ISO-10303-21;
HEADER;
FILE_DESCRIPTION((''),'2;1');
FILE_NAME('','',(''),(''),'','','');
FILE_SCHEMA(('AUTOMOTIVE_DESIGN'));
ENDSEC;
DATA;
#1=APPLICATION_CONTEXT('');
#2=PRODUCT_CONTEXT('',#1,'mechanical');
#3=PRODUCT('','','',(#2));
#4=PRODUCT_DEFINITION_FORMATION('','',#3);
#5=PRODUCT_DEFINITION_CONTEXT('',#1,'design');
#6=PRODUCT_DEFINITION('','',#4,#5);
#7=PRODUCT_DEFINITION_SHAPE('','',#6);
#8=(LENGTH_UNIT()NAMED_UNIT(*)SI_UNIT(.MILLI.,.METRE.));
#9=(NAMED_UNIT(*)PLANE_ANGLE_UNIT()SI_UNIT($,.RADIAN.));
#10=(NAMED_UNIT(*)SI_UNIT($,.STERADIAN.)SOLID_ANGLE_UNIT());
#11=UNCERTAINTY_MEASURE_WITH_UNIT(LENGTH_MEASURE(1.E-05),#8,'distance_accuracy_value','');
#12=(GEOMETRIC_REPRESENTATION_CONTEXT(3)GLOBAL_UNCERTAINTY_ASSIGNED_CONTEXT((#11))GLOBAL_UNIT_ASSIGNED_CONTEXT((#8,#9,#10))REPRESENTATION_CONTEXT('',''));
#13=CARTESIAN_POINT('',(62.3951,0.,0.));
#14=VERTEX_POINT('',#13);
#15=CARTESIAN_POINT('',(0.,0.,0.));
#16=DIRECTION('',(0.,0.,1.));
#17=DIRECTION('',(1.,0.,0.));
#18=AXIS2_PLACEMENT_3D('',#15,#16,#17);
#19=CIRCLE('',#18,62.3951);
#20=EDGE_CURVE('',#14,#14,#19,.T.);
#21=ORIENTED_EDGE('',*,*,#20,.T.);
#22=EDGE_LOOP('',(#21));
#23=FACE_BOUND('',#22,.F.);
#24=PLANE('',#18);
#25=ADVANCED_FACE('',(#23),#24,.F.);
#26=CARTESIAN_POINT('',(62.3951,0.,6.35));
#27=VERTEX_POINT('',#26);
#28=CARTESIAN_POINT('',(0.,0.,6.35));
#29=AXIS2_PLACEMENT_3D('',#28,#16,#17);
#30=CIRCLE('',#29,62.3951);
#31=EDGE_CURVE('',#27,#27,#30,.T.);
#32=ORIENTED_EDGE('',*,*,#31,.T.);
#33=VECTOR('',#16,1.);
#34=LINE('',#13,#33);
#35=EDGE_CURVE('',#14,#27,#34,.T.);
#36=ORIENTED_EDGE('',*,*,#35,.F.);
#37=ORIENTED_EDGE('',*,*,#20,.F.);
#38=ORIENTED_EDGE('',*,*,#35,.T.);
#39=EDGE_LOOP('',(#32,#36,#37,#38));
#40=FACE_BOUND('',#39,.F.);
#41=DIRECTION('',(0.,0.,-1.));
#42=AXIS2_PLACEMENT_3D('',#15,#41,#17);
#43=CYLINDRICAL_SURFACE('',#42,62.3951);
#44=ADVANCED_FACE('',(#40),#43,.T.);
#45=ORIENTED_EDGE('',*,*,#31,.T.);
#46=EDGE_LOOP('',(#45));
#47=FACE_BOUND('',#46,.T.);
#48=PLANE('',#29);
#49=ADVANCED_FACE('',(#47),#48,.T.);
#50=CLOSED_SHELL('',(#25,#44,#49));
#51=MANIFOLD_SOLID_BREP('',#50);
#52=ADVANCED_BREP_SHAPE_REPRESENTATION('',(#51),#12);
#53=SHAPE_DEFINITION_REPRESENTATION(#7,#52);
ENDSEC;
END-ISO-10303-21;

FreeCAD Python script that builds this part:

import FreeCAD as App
import Part
import Sketcher

V = App.Vector
Q = App.Units.Quantity

doc = App.newDocument("Part")
params = doc.addObject("Spreadsheet::Sheet", "Params")
for row, (alias, value) in enumerate([
    ("sketch1_diameter", "4.913 in"),
    ("pad1_length", "0.25 in"),
], start=1):
    params.set(f"A{row}", alias)
    params.set(f"B{row}", "=" + value)
    params.setAlias(f"B{row}", alias)

body = doc.addObject("PartDesign::Body", "Body")

# Sketch on XY plane
sketch1 = doc.addObject("Sketcher::SketchObject", "Sketch")
body.addObject(sketch1)
sketch1.AttachmentSupport = (doc.XY_Plane, [""])
sketch1.MapMode = "FlatFace"
sketch1.addGeometry(Part.Circle(V(0, 0, 0), V(0, 0, 1), 62), False)
sketch1.addConstraint([
    Sketcher.Constraint("Coincident", 0, 3, -1, 1),
    Sketcher.Constraint("Diameter", 0, Q("4.913 in")),
])
sketch1.setExpression("Constraints[1]", "Params.sketch1_diameter")
pad1 = doc.addObject("PartDesign::Pad", "Pad")
body.addObject(pad1)
pad1.Profile = sketch1
pad1.setExpression("Length", "Params.pad1_length")

doc.recompute()
